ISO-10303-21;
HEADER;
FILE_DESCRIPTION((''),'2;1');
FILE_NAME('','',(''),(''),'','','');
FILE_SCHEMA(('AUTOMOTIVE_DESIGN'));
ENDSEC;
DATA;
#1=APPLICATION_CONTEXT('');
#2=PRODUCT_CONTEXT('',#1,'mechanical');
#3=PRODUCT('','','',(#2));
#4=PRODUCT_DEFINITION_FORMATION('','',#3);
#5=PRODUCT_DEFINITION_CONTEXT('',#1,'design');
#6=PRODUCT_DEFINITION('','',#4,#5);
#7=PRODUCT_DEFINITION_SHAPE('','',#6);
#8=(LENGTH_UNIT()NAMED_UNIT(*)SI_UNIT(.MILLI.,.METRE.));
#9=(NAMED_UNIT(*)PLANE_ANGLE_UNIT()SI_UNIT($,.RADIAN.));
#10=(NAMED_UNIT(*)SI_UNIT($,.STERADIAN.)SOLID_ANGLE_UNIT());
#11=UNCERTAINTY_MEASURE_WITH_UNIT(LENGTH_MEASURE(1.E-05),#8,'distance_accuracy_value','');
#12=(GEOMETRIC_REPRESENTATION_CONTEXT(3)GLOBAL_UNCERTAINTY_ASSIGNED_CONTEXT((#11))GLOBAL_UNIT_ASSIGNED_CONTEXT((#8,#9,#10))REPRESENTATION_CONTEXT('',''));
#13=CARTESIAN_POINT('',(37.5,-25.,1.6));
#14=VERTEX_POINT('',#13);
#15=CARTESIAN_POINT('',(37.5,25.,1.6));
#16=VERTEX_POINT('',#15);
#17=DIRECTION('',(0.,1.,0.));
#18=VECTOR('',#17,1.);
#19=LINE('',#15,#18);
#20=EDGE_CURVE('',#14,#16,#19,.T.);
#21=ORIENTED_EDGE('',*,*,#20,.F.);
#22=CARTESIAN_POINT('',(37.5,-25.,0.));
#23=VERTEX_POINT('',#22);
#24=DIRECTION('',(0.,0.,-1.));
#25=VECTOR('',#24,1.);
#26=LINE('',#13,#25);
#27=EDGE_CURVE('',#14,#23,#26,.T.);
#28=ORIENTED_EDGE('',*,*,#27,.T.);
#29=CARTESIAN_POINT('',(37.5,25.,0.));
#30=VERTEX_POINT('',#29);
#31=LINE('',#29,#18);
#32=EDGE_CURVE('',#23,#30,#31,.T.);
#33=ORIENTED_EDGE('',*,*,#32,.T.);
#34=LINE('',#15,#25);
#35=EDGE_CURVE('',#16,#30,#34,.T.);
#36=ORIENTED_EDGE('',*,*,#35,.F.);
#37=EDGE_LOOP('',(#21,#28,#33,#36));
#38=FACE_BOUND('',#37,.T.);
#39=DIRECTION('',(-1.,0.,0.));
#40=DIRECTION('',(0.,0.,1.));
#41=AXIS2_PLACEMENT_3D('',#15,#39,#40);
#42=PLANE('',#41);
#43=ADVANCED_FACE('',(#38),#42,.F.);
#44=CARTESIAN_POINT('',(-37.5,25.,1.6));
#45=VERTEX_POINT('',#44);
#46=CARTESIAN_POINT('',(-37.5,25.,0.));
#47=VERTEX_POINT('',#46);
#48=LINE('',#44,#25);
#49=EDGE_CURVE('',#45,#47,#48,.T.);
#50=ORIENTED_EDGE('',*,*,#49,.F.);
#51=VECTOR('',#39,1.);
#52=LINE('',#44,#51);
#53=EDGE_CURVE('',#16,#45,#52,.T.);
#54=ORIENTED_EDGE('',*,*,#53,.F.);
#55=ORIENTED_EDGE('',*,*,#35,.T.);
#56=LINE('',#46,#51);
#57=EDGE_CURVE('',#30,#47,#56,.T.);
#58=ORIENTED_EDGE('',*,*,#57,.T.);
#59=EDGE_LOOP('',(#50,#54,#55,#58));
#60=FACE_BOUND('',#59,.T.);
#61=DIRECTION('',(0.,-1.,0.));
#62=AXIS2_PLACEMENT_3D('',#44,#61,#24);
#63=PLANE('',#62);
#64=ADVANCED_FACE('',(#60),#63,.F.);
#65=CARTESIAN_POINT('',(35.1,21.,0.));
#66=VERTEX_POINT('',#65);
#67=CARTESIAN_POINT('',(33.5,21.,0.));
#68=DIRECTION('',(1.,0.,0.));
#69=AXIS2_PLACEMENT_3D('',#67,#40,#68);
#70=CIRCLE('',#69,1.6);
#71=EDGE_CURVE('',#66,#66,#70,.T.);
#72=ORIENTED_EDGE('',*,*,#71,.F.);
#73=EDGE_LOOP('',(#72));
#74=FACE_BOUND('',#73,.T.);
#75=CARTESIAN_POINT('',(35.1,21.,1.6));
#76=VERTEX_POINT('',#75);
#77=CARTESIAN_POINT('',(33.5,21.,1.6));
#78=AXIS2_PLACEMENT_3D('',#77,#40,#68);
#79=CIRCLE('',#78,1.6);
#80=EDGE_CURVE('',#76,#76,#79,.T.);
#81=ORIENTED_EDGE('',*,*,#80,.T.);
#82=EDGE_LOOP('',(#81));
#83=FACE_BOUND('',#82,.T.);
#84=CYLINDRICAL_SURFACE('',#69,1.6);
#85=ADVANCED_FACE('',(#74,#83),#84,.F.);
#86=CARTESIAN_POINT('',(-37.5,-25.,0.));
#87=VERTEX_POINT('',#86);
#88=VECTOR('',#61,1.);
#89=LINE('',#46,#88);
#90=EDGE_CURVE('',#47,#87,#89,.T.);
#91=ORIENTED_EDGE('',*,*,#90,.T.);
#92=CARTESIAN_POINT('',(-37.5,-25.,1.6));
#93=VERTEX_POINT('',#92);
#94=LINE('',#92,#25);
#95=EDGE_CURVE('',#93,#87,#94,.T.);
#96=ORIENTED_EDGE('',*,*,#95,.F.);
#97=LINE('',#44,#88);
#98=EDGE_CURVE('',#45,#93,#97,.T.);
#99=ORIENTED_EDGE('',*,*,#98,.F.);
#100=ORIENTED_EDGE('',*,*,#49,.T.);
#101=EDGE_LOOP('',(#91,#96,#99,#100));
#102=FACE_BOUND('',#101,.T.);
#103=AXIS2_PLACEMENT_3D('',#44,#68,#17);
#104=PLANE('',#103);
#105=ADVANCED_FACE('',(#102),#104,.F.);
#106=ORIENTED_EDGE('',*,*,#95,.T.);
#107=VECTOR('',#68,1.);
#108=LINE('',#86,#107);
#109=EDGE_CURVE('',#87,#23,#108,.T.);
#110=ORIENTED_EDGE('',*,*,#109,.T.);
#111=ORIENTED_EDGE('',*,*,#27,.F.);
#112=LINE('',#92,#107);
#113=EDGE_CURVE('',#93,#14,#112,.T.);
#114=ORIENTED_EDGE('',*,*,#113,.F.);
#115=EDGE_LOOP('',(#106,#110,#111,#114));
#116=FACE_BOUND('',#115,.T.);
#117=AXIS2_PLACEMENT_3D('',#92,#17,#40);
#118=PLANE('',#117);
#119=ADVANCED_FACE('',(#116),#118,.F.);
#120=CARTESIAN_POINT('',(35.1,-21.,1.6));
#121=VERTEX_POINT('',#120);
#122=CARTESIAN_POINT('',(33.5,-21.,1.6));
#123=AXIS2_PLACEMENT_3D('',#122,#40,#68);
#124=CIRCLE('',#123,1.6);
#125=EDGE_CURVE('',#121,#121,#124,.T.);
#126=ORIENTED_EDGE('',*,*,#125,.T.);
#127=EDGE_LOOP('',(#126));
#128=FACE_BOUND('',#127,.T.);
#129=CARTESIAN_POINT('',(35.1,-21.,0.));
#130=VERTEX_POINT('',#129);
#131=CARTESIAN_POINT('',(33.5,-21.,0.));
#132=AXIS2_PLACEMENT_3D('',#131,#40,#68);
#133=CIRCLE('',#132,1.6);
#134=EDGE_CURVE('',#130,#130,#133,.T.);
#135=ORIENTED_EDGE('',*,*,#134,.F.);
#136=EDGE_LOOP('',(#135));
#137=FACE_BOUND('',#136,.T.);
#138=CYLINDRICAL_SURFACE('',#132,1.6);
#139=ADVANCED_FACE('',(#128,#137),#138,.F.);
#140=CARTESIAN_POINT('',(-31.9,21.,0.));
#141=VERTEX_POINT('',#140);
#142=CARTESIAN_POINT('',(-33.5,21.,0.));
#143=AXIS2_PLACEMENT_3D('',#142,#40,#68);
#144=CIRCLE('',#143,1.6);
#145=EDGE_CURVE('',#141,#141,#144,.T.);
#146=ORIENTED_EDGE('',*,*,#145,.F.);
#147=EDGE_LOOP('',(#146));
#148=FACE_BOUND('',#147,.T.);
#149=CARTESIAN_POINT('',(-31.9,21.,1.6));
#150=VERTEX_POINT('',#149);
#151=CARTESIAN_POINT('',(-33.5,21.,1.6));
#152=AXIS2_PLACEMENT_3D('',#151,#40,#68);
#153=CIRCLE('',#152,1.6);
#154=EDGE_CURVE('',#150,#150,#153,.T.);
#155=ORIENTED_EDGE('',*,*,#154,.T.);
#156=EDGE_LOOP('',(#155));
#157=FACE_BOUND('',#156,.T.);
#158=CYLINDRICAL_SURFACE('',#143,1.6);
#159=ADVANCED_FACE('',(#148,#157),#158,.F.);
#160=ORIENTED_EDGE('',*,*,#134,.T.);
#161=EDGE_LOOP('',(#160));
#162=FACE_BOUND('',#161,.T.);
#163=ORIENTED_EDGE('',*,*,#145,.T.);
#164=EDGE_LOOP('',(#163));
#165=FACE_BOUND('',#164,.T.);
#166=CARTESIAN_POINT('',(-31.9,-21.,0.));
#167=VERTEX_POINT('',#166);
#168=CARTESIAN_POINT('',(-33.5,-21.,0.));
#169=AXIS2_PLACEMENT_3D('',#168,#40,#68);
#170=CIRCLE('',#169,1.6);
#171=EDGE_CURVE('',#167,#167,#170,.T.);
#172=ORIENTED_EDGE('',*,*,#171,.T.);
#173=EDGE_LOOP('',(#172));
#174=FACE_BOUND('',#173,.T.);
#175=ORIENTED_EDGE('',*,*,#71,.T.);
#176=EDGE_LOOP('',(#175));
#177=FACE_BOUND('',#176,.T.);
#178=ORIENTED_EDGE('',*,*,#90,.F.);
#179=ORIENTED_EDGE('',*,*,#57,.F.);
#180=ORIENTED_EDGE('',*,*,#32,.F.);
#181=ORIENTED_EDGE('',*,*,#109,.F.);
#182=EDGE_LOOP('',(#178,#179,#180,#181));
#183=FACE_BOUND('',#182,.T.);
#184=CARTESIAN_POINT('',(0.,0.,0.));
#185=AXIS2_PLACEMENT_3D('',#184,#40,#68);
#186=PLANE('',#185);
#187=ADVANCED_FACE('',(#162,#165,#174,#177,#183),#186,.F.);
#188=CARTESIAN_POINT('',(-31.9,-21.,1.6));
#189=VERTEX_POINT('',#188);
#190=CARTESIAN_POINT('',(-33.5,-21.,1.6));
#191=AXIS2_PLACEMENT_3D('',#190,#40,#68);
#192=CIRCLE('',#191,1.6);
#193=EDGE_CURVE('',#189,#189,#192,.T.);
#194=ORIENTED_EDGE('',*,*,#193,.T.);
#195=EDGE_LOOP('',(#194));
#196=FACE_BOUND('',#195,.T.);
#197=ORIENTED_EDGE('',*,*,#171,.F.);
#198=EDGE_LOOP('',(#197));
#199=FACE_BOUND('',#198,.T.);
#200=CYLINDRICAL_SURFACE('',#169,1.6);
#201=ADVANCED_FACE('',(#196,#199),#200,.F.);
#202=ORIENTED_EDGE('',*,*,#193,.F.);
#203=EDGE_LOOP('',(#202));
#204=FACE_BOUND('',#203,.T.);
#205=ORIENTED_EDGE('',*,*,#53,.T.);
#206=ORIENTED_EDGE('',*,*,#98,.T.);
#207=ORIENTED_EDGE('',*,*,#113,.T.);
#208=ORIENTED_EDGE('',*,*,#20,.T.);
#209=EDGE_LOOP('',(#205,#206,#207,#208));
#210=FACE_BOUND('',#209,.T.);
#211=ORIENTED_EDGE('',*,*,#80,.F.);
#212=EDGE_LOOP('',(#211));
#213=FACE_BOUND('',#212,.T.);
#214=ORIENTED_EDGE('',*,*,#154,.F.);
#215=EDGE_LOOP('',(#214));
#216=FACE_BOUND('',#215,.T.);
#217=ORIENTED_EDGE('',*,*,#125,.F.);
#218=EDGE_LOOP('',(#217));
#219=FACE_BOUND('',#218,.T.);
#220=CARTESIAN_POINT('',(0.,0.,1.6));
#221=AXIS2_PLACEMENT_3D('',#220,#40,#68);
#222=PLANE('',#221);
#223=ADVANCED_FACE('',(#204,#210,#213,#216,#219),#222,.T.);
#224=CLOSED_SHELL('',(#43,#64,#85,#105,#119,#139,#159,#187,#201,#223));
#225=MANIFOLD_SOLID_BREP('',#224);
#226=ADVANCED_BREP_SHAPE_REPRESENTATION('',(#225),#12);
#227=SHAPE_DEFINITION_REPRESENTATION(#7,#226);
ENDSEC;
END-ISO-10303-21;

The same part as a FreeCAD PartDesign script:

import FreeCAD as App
import Part
import Sketcher
from FreeCAD import Vector

doc = App.newDocument("Part")
body = doc.addObject("PartDesign::Body", "Body")

# Sketch on XY plane
sketch1 = body.newObject("Sketcher::SketchObject", "Sketch")
sketch1.AttachmentSupport = (doc.getObject("XY_Plane"), [""])
sketch1.MapMode = "FlatFace"
sketch1.addGeometry([
    Part.LineSegment(Vector(-37.5, 25, 0), Vector(-37.5, -25, 0)),
    Part.LineSegment(Vector(-37.5, -25, 0), Vector(37.5, -25, 0)),
    Part.LineSegment(Vector(37.5, -25, 0), Vector(37.5, 25, 0)),
    Part.LineSegment(Vector(37.5, 25, 0), Vector(-37.5, 25, 0)),
], False)
sketch1.addConstraint([
    Sketcher.Constraint("Coincident", 0, 2, 1, 1),
    Sketcher.Constraint("Coincident", 1, 2, 2, 1),
    Sketcher.Constraint("Coincident", 2, 2, 3, 1),
    Sketcher.Constraint("Coincident", 3, 2, 0, 1),
    Sketcher.Constraint("Vertical", 0),
    Sketcher.Constraint("Horizontal", 1),
    Sketcher.Constraint("Vertical", 2),
    Sketcher.Constraint("Horizontal", 3),
    Sketcher.Constraint("Symmetric", 0, 2, 2, 2, -1, 1),
    Sketcher.Constraint("DistanceX", 1, 1, 1, 2, 75.0),
    Sketcher.Constraint("DistanceY", 0, 2, 0, 1, 50.0),
])
pad1 = body.newObject("PartDesign::Pad", "Pad")
pad1.Profile = sketch1
pad1.Length = 1.6

# Sketch on XY plane
sketch2 = body.newObject("Sketcher::SketchObject", "Sketch001")
sketch2.AttachmentSupport = (doc.getObject("XY_Plane"), [""])
sketch2.MapMode = "FlatFace"
sketch2.AttachmentOffset = App.Placement(Vector(0, 0, 1.6), App.Rotation())
sketch2.addGeometry([
    Part.Circle(Vector(-33.5, 21, 0), Vector(0, 0, 1), 1.6),
    Part.Circle(Vector(33.5, 21, 0), Vector(0, 0, 1), 1.6),
    Part.Circle(Vector(33.5, -21, 0), Vector(0, 0, 1), 1.6),
    Part.Circle(Vector(-33.5, -21, 0), Vector(0, 0, 1), 1.6),
], False)
sketch2.addConstraint([
    Sketcher.Constraint("Equal", 0, 1),
    Sketcher.Constraint("Equal", 1, 2),
    Sketcher.Constraint("Equal", 2, 3),
    Sketcher.Constraint("Symmetric", 0, 3, 2, 3, -1, 1),
    Sketcher.Constraint("Symmetric", 1, 3, 3, 3, -1, 1),
    Sketcher.Constraint("Symmetric", 0, 3, 1, 3, -2),
    Sketcher.Constraint("Diameter", 0, 3.2),
    Sketcher.Constraint("DistanceY", -1, 1, 0, 3, 21.0),
    Sketcher.Constraint("DistanceX", 0, 3, 1, 3, 67.0),
])
pocket1 = body.newObject("PartDesign::Pocket", "Pocket")
pocket1.Profile = sketch2
pocket1.Type = "ThroughAll"

doc.recompute()
